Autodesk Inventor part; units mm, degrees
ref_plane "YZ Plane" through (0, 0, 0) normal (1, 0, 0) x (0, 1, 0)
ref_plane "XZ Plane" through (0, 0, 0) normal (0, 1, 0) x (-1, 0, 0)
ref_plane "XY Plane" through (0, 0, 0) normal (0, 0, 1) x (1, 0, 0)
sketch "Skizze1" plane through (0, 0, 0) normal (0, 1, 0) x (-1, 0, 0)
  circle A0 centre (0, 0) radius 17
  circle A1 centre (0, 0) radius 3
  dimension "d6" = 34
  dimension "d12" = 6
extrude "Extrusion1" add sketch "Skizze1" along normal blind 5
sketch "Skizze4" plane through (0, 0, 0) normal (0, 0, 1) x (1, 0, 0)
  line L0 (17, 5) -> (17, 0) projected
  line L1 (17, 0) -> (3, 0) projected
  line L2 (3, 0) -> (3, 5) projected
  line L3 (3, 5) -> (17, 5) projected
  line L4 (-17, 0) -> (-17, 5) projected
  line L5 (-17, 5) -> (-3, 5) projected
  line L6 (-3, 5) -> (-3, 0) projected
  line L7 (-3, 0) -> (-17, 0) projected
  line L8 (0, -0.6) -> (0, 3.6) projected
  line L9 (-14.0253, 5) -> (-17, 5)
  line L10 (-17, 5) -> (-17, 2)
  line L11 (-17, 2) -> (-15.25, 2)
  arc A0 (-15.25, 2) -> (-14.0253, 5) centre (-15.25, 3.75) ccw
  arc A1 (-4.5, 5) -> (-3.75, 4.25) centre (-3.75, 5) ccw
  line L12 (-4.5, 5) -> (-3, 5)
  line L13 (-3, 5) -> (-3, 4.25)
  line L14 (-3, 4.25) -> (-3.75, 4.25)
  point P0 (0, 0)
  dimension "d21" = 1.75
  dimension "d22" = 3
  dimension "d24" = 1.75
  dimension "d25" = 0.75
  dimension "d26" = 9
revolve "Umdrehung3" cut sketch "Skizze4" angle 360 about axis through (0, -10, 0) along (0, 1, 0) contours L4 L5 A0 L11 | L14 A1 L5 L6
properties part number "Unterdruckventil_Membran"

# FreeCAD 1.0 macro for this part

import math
import FreeCAD as App
import Part
import Sketcher

V = App.Vector
Q = App.Units.Quantity

doc = App.newDocument("Part")
body = doc.addObject("PartDesign::Body", "Body")

# Sketch on XZ plane
sketch1 = body.newObject("Sketcher::SketchObject", "Sketch")
sketch1.AttachmentSupport = (doc.getObject("XZ_Plane"), [""])
sketch1.MapMode = "FlatFace"
sketch1.addGeometry([
    Part.Circle(V(0, 0, 0), V(0, 0, 1), 17),
    Part.Circle(V(0, 0, 0), V(0, 0, 1), 3),
], False)
sketch1.addConstraint([
    Sketcher.Constraint("Coincident", 0, 3, -1, 1),
    Sketcher.Constraint("Coincident", 1, 3, -1, 1),
    Sketcher.Constraint("Diameter", 0, Q("34 mm")),
    Sketcher.Constraint("Diameter", 1, Q("6 mm")),
])
pad1 = body.newObject("PartDesign::Pad", "Pad")
pad1.Profile = sketch1
pad1.Length = 5
pad1.Reversed = True

# Sketch on XY plane
sketch2 = body.newObject("Sketcher::SketchObject", "Sketch001")
sketch2.AttachmentSupport = (doc.getObject("XY_Plane"), [""])
sketch2.MapMode = "FlatFace"
sketch2.addGeometry([
    Part.LineSegment(V(-17, 5, 0), V(-17, 2, 0)),  # 0
    Part.LineSegment(V(-17, 2, 0), V(-15.2, 2, 0)),  # 1
    Part.ArcOfCircle(Part.Circle(V(-15.2, 3.8, 0), V(0, 0, 1), 1.8), math.radians(-90), math.radians(46)),  # 2
    Part.LineSegment(V(-14, 5, 0), V(-17, 5, 0)),  # 3
    Part.LineSegment(V(-3.8, 4.2, 0), V(-3, 4.2, 0)),  # 4
    Part.LineSegment(V(-3, 4.2, 0), V(-3, 5, 0)),  # 5
    Part.LineSegment(V(-3, 5, 0), V(-4.5, 5, 0)),  # 6
    Part.ArcOfCircle(Part.Circle(V(-3.8, 5, 0), V(0, 0, 1), 0.8), math.radians(180), math.radians(270)),  # 7
], False)
sketch2.addConstraint([
    Sketcher.Constraint("Coincident", 0, 2, 1, 1),
    Sketcher.Constraint("Tangent", 1, 2, 2, 1),
    Sketcher.Constraint("Coincident", 2, 2, 3, 1),
    Sketcher.Constraint("Coincident", 3, 2, 0, 1),
    Sketcher.Constraint("Coincident", 4, 2, 5, 1),
    Sketcher.Constraint("Coincident", 5, 2, 6, 1),
    Sketcher.Constraint("Coincident", 6, 2, 7, 1),
    Sketcher.Constraint("Tangent", 7, 2, 4, 1),
    Sketcher.Constraint("Vertical", 0),
    Sketcher.Constraint("Horizontal", 1),
    Sketcher.Constraint("Horizontal", 3),
    Sketcher.Constraint("Horizontal", 4),
    Sketcher.Constraint("Vertical", 5),
    Sketcher.Constraint("Horizontal", 6),
    Sketcher.Constraint("Horizontal", 7, 3, 2, 2),
    Sketcher.Constraint("Horizontal", 3, 2, 5, 2),
    Sketcher.Constraint("Equal", 4, 5),
    Sketcher.Constraint("DistanceY", 0, 2, 0, 1, Q("3 mm")),
    Sketcher.Constraint("Radius", 2, Q("1.75 mm")),
    Sketcher.Constraint("Radius", 7, Q("0.75 mm")),
    Sketcher.Constraint("DistanceX", 4, 2, -1, 1, Q("3 mm")),
    Sketcher.Constraint("DistanceX", 1, 1, 1, 2, Q("1.75 mm")),
    Sketcher.Constraint("DistanceY", -1, 1, 7, 3, Q("5 mm")),
    Sketcher.Constraint("DistanceX", 0, 2, -1, 1, Q("17 mm")),
])
groove = body.newObject("PartDesign::Groove", "Groove")
groove.Profile = sketch2
groove.ReferenceAxis = (sketch2, ["V_Axis"])
groove.Angle = 360

doc.recompute()
